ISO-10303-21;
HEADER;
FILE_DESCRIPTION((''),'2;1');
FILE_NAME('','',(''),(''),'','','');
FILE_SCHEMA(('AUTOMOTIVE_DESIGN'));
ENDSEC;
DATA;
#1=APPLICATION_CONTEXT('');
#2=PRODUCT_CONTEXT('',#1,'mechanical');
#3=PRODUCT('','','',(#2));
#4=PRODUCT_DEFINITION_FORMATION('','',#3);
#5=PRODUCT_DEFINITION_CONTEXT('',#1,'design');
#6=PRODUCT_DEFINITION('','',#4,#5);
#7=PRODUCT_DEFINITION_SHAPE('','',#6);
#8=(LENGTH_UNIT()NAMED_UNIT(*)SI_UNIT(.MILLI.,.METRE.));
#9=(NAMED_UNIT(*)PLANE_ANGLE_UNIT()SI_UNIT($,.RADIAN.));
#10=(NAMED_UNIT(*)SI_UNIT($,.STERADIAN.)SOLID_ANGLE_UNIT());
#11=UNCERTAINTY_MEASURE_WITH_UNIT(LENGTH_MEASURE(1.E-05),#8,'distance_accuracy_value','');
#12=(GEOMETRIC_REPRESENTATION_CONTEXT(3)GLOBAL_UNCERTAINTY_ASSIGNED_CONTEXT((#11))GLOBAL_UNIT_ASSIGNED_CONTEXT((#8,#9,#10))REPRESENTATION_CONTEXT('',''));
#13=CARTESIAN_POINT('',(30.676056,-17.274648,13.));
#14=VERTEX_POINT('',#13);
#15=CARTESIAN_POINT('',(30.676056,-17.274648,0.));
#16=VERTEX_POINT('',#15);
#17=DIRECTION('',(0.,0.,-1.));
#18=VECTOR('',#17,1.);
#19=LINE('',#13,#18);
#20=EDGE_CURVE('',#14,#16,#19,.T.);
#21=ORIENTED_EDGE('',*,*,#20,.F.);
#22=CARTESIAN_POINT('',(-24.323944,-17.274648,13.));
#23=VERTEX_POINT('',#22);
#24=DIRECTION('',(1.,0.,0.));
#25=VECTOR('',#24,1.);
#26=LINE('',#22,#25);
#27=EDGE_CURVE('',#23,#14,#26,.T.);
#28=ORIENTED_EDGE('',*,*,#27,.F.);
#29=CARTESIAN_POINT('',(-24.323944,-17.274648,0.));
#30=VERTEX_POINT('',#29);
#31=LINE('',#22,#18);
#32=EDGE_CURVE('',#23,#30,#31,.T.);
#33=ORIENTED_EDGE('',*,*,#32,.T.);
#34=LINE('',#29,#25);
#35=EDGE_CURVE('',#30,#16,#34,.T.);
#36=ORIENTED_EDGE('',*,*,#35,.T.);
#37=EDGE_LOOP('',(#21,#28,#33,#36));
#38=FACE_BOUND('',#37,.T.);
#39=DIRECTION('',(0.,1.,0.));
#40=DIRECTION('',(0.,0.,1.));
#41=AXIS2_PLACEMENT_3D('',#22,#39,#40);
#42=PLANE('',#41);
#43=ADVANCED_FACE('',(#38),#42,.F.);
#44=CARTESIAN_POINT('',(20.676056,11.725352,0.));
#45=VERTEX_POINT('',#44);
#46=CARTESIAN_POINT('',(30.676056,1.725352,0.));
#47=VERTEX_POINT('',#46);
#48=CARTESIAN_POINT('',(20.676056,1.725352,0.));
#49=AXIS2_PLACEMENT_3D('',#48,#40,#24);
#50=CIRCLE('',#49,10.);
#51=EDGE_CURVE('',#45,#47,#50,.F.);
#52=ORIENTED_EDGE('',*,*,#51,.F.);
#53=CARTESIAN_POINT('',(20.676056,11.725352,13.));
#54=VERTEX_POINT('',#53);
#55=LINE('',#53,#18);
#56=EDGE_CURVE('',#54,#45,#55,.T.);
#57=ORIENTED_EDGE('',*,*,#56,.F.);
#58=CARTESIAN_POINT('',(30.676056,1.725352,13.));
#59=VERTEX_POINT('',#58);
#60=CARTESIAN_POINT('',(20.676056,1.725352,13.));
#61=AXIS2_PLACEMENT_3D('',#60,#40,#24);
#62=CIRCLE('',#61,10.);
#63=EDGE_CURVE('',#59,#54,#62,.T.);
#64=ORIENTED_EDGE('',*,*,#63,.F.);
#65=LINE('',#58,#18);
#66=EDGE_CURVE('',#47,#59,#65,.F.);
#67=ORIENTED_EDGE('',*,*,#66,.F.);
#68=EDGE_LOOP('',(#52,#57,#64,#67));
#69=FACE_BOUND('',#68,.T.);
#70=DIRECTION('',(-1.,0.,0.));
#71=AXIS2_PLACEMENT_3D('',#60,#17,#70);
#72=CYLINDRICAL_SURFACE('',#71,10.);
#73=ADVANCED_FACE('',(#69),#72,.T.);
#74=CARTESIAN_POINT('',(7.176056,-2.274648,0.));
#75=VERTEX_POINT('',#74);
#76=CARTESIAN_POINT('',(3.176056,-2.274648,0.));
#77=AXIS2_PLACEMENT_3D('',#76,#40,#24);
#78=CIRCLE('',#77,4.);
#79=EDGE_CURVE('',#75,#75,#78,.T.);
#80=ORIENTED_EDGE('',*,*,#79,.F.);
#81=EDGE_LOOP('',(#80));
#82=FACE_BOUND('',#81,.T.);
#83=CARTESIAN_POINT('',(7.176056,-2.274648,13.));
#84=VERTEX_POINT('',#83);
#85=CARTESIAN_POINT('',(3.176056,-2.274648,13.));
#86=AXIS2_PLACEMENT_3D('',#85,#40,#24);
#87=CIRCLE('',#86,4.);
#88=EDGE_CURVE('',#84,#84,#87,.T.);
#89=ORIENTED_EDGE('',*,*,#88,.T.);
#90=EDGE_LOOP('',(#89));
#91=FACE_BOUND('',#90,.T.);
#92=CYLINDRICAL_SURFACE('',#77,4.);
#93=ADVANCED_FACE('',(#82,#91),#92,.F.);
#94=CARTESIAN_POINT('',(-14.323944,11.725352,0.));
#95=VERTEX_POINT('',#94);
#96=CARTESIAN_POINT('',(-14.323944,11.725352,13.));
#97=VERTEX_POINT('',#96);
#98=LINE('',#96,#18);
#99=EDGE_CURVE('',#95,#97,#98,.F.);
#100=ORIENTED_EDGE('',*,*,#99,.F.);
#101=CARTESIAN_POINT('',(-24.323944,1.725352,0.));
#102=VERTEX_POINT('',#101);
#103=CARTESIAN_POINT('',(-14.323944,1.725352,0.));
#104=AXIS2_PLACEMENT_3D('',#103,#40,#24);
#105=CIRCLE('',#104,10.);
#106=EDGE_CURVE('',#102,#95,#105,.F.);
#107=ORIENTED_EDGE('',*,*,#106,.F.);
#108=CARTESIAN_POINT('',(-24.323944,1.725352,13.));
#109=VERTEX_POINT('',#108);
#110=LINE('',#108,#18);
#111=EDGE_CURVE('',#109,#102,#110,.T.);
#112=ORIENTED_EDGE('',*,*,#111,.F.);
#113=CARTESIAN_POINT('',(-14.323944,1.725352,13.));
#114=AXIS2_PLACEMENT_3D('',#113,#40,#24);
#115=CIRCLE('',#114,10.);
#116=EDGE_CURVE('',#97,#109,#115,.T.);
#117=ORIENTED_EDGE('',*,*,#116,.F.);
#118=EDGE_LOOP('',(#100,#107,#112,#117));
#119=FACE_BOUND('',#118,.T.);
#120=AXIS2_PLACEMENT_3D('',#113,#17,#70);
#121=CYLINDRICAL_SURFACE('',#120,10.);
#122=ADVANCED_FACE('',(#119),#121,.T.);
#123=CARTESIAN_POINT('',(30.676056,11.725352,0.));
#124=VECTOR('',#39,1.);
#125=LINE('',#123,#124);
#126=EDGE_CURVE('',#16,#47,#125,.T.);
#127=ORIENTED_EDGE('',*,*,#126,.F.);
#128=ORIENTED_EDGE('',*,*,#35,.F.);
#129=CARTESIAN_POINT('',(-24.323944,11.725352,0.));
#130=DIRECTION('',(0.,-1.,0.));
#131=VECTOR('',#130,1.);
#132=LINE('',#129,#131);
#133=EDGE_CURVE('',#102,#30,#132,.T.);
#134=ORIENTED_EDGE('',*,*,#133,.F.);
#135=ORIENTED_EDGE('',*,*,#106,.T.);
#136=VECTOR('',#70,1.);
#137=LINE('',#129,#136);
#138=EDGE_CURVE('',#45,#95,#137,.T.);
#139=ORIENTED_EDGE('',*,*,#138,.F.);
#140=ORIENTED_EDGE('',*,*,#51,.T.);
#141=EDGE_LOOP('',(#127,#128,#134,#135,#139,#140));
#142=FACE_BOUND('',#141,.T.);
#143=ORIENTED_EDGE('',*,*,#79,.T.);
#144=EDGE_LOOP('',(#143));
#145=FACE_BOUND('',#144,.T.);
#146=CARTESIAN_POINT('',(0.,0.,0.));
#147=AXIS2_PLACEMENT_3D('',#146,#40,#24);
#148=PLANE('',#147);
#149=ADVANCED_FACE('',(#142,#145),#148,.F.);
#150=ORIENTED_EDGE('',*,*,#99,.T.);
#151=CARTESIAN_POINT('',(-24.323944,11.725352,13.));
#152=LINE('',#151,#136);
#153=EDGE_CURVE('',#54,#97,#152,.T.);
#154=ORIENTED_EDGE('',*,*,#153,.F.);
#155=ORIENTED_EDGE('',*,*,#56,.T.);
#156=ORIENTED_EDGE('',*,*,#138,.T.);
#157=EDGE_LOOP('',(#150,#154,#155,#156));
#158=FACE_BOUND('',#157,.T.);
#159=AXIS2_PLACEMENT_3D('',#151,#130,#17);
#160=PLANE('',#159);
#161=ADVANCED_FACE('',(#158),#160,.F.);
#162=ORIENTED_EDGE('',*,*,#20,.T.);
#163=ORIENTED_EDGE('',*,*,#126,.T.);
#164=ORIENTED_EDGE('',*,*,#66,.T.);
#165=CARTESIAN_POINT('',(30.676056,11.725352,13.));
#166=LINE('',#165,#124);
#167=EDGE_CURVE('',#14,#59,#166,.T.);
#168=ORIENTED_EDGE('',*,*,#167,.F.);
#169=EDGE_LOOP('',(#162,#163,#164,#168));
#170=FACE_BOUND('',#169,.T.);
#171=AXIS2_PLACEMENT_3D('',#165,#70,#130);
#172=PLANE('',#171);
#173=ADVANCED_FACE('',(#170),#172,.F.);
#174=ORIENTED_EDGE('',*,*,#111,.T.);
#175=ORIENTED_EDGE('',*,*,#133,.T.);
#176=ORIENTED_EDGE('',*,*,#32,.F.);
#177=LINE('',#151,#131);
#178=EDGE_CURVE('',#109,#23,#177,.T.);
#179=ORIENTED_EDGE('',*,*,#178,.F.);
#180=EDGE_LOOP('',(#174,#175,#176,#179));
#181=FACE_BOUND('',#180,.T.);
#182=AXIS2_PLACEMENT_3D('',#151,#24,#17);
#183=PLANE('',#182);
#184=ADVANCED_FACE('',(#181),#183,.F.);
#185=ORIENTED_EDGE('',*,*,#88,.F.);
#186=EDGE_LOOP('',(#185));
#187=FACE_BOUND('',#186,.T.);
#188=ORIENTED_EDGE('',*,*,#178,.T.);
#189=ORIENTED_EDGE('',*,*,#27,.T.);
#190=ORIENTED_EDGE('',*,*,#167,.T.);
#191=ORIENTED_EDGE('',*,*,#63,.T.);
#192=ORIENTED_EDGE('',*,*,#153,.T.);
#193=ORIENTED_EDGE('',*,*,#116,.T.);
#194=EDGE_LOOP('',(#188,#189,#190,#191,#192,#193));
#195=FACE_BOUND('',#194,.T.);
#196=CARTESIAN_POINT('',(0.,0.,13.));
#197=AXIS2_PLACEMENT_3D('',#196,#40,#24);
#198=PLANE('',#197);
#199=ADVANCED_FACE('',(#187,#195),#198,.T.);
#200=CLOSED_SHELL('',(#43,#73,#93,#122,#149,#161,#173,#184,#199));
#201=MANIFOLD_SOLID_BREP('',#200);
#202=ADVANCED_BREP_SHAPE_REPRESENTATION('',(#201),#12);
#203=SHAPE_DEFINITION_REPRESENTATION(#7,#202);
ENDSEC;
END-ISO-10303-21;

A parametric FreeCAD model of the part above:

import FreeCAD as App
import Part
import Sketcher

V = App.Vector
Q = App.Units.Quantity


def edges_at(feature, points):
    """Names of the edges that pass closest to the given points."""
    edges = feature.Shape.Edges
    near = lambda p: min(range(len(edges)), key=lambda i: edges[i].distToShape(Part.Vertex(*p))[0])
    return sorted({f"Edge{near(p) + 1}" for p in points})


def add_polygon(sketch, points):
    """Adds a closed chain of lines whose ends are joined by coincident constraints."""
    first, n = sketch.GeometryCount, len(points)
    for a, b in zip(points, points[1:] + points[:1]):
        sketch.addGeometry(Part.LineSegment(App.Vector(*a, 0), App.Vector(*b, 0)), False)
    for i in range(n):
        sketch.addConstraint(Sketcher.Constraint("Coincident", first + i, 2, first + (i + 1) % n, 1))

doc = App.newDocument("Part")
body = doc.addObject("PartDesign::Body", "Body")

sketch1 = body.newObject("Sketcher::SketchObject", "Sketch")
sketch1.AttachmentSupport = (doc.getObject("XY_Plane"), [""])
sketch1.MapMode = "FlatFace"
add_polygon(sketch1, [(-24.323944, 11.725352), (-24.323944, -17.274648), (30.676056, -17.274648), (30.676056, 11.725352)])
sketch1.addConstraint(Sketcher.Constraint("Vertical", 0))
sketch1.addConstraint(Sketcher.Constraint("Horizontal", 1))
sketch1.addConstraint(Sketcher.Constraint("Vertical", 2))
sketch1.addConstraint(Sketcher.Constraint("Horizontal", 3))
sketch1.addConstraint(Sketcher.Constraint("DistanceX", 1, 1, 1, 2, Q("55 mm")))
sketch1.addConstraint(Sketcher.Constraint("DistanceY", 0, 2, 0, 1, Q("29 mm")))
sketch1.addConstraint(Sketcher.Constraint("DistanceX", 0, 2, -1, 1, Q("24.323944 mm")))
sketch1.addConstraint(Sketcher.Constraint("DistanceY", 0, 2, -1, 1, Q("17.274648 mm")))
pad1 = body.newObject("PartDesign::Pad", "Pad")
pad1.Profile = sketch1
pad1.Length = 13

sketch2 = body.newObject("Sketcher::SketchObject", "Sketch001")
sketch2.AttachmentSupport = (doc.getObject("XY_Plane"), [""])
sketch2.MapMode = "FlatFace"
sketch2.AttachmentOffset = App.Placement(V(0, 0, 13), App.Rotation())
add_polygon(sketch2, [(-31.676, 19.077), (-31.676, -24.627), (38.028, -24.627), (38.028, 19.077)])
add_polygon(sketch2, [(30.676056, -17.274648), (-24.323944, -17.274648), (-24.323944, 11.725352), (30.676056, 11.725352)])
sketch2.addGeometry(Part.Circle(V(3.176056, -2.274648, 0), V(0, 0, 1), 4), False)
sketch2.addConstraint(Sketcher.Constraint("Vertical", 0))
sketch2.addConstraint(Sketcher.Constraint("Horizontal", 1))
sketch2.addConstraint(Sketcher.Constraint("Vertical", 2))
sketch2.addConstraint(Sketcher.Constraint("Horizontal", 3))
sketch2.addConstraint(Sketcher.Constraint("Horizontal", 4))
sketch2.addConstraint(Sketcher.Constraint("Vertical", 5))
sketch2.addConstraint(Sketcher.Constraint("Horizontal", 6))
sketch2.addConstraint(Sketcher.Constraint("Vertical", 7))
sketch2.addConstraint(Sketcher.Constraint("Diameter", 8, Q("8 mm")))
sketch2.addConstraint(Sketcher.Constraint("DistanceX", 4, 2, 4, 1, Q("55 mm")))
sketch2.addConstraint(Sketcher.Constraint("DistanceY", 5, 1, 5, 2, Q("29 mm")))
sketch2.addConstraint(Sketcher.Constraint("DistanceY", 4, 2, 8, 3, Q("15 mm")))
sketch2.addConstraint(Sketcher.Constraint("DistanceX", 4, 2, 8, 3, Q("27.5 mm")))
sketch2.addConstraint(Sketcher.Constraint("DistanceX", 1, 1, 1, 2, Q("69.704 mm")))
sketch2.addConstraint(Sketcher.Constraint("DistanceY", 0, 2, 0, 1, Q("43.704 mm")))
sketch2.addConstraint(Sketcher.Constraint("DistanceX", 0, 2, -1, 1, Q("31.676 mm")))
sketch2.addConstraint(Sketcher.Constraint("DistanceY", 0, 2, -1, 1, Q("24.627 mm")))
sketch2.addConstraint(Sketcher.Constraint("DistanceX", -1, 1, 8, 3, Q("3.176056 mm")))
sketch2.addConstraint(Sketcher.Constraint("DistanceY", 8, 3, -1, 1, Q("2.274648 mm")))
pocket1 = body.newObject("PartDesign::Pocket", "Pocket")
pocket1.Profile = sketch2
pocket1.Length = 13
doc.recompute()

fillet = body.newObject("PartDesign::Fillet", "Fillet")
fillet.Base = (pocket1, edges_at(pocket1, [(-24.324, 11.725, 6.5), (30.676, 11.725, 6.5)]))
fillet.Radius = 10

doc.recompute()
